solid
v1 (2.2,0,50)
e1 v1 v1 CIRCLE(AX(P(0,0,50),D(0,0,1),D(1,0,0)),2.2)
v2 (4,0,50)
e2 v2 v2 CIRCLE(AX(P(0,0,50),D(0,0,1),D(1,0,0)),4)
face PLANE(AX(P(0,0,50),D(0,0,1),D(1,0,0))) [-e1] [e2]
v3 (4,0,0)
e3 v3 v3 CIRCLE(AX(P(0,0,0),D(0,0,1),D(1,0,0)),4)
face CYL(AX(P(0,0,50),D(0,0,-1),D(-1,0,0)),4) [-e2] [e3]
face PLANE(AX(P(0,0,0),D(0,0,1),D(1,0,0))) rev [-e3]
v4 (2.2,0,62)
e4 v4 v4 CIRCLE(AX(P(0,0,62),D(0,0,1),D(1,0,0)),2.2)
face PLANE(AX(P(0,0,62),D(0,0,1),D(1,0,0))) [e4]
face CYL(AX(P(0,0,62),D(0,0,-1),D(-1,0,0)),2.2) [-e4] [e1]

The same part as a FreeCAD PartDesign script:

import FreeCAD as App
import Part
import Sketcher
Q = App.Units.Quantity

doc = App.newDocument("Part")
body = doc.addObject("PartDesign::Body", "Body")

# Sketch on XY plane
sketch1 = doc.addObject("Sketcher::SketchObject", "Sketch")
body.addObject(sketch1)
sketch1.AttachmentSupport = (doc.XY_Plane, [""])
sketch1.MapMode = "FlatFace"
sketch1.addGeometry(Part.Circle(App.Vector(0, 0, 0), App.Vector(0, 0, 1), 4), False)
sketch1.addConstraint([
    Sketcher.Constraint("Coincident", 0, 3, -1, 1),
    Sketcher.Constraint("Diameter", 0, Q("8 mm")),
])
pad1 = doc.addObject("PartDesign::Pad", "Pad")
body.addObject(pad1)
pad1.Profile = sketch1
pad1.Length = 50

# Sketch on XY plane
sketch2 = doc.addObject("Sketcher::SketchObject", "Sketch001")
body.addObject(sketch2)
sketch2.AttachmentSupport = (doc.XY_Plane, [""])
sketch2.MapMode = "FlatFace"
sketch2.AttachmentOffset = App.Placement(App.Vector(0, 0, 50), App.Rotation())
sketch2.addGeometry(Part.Circle(App.Vector(0, 0, 0), App.Vector(0, 0, 1), 2.2), False)
sketch2.addConstraint([
    Sketcher.Constraint("Coincident", 0, 3, -1, 1),
    Sketcher.Constraint("Diameter", 0, Q("4.4 mm")),
])
pad2 = doc.addObject("PartDesign::Pad", "Pad001")
body.addObject(pad2)
pad2.Profile = sketch2
pad2.Length = 12

doc.recompute()
